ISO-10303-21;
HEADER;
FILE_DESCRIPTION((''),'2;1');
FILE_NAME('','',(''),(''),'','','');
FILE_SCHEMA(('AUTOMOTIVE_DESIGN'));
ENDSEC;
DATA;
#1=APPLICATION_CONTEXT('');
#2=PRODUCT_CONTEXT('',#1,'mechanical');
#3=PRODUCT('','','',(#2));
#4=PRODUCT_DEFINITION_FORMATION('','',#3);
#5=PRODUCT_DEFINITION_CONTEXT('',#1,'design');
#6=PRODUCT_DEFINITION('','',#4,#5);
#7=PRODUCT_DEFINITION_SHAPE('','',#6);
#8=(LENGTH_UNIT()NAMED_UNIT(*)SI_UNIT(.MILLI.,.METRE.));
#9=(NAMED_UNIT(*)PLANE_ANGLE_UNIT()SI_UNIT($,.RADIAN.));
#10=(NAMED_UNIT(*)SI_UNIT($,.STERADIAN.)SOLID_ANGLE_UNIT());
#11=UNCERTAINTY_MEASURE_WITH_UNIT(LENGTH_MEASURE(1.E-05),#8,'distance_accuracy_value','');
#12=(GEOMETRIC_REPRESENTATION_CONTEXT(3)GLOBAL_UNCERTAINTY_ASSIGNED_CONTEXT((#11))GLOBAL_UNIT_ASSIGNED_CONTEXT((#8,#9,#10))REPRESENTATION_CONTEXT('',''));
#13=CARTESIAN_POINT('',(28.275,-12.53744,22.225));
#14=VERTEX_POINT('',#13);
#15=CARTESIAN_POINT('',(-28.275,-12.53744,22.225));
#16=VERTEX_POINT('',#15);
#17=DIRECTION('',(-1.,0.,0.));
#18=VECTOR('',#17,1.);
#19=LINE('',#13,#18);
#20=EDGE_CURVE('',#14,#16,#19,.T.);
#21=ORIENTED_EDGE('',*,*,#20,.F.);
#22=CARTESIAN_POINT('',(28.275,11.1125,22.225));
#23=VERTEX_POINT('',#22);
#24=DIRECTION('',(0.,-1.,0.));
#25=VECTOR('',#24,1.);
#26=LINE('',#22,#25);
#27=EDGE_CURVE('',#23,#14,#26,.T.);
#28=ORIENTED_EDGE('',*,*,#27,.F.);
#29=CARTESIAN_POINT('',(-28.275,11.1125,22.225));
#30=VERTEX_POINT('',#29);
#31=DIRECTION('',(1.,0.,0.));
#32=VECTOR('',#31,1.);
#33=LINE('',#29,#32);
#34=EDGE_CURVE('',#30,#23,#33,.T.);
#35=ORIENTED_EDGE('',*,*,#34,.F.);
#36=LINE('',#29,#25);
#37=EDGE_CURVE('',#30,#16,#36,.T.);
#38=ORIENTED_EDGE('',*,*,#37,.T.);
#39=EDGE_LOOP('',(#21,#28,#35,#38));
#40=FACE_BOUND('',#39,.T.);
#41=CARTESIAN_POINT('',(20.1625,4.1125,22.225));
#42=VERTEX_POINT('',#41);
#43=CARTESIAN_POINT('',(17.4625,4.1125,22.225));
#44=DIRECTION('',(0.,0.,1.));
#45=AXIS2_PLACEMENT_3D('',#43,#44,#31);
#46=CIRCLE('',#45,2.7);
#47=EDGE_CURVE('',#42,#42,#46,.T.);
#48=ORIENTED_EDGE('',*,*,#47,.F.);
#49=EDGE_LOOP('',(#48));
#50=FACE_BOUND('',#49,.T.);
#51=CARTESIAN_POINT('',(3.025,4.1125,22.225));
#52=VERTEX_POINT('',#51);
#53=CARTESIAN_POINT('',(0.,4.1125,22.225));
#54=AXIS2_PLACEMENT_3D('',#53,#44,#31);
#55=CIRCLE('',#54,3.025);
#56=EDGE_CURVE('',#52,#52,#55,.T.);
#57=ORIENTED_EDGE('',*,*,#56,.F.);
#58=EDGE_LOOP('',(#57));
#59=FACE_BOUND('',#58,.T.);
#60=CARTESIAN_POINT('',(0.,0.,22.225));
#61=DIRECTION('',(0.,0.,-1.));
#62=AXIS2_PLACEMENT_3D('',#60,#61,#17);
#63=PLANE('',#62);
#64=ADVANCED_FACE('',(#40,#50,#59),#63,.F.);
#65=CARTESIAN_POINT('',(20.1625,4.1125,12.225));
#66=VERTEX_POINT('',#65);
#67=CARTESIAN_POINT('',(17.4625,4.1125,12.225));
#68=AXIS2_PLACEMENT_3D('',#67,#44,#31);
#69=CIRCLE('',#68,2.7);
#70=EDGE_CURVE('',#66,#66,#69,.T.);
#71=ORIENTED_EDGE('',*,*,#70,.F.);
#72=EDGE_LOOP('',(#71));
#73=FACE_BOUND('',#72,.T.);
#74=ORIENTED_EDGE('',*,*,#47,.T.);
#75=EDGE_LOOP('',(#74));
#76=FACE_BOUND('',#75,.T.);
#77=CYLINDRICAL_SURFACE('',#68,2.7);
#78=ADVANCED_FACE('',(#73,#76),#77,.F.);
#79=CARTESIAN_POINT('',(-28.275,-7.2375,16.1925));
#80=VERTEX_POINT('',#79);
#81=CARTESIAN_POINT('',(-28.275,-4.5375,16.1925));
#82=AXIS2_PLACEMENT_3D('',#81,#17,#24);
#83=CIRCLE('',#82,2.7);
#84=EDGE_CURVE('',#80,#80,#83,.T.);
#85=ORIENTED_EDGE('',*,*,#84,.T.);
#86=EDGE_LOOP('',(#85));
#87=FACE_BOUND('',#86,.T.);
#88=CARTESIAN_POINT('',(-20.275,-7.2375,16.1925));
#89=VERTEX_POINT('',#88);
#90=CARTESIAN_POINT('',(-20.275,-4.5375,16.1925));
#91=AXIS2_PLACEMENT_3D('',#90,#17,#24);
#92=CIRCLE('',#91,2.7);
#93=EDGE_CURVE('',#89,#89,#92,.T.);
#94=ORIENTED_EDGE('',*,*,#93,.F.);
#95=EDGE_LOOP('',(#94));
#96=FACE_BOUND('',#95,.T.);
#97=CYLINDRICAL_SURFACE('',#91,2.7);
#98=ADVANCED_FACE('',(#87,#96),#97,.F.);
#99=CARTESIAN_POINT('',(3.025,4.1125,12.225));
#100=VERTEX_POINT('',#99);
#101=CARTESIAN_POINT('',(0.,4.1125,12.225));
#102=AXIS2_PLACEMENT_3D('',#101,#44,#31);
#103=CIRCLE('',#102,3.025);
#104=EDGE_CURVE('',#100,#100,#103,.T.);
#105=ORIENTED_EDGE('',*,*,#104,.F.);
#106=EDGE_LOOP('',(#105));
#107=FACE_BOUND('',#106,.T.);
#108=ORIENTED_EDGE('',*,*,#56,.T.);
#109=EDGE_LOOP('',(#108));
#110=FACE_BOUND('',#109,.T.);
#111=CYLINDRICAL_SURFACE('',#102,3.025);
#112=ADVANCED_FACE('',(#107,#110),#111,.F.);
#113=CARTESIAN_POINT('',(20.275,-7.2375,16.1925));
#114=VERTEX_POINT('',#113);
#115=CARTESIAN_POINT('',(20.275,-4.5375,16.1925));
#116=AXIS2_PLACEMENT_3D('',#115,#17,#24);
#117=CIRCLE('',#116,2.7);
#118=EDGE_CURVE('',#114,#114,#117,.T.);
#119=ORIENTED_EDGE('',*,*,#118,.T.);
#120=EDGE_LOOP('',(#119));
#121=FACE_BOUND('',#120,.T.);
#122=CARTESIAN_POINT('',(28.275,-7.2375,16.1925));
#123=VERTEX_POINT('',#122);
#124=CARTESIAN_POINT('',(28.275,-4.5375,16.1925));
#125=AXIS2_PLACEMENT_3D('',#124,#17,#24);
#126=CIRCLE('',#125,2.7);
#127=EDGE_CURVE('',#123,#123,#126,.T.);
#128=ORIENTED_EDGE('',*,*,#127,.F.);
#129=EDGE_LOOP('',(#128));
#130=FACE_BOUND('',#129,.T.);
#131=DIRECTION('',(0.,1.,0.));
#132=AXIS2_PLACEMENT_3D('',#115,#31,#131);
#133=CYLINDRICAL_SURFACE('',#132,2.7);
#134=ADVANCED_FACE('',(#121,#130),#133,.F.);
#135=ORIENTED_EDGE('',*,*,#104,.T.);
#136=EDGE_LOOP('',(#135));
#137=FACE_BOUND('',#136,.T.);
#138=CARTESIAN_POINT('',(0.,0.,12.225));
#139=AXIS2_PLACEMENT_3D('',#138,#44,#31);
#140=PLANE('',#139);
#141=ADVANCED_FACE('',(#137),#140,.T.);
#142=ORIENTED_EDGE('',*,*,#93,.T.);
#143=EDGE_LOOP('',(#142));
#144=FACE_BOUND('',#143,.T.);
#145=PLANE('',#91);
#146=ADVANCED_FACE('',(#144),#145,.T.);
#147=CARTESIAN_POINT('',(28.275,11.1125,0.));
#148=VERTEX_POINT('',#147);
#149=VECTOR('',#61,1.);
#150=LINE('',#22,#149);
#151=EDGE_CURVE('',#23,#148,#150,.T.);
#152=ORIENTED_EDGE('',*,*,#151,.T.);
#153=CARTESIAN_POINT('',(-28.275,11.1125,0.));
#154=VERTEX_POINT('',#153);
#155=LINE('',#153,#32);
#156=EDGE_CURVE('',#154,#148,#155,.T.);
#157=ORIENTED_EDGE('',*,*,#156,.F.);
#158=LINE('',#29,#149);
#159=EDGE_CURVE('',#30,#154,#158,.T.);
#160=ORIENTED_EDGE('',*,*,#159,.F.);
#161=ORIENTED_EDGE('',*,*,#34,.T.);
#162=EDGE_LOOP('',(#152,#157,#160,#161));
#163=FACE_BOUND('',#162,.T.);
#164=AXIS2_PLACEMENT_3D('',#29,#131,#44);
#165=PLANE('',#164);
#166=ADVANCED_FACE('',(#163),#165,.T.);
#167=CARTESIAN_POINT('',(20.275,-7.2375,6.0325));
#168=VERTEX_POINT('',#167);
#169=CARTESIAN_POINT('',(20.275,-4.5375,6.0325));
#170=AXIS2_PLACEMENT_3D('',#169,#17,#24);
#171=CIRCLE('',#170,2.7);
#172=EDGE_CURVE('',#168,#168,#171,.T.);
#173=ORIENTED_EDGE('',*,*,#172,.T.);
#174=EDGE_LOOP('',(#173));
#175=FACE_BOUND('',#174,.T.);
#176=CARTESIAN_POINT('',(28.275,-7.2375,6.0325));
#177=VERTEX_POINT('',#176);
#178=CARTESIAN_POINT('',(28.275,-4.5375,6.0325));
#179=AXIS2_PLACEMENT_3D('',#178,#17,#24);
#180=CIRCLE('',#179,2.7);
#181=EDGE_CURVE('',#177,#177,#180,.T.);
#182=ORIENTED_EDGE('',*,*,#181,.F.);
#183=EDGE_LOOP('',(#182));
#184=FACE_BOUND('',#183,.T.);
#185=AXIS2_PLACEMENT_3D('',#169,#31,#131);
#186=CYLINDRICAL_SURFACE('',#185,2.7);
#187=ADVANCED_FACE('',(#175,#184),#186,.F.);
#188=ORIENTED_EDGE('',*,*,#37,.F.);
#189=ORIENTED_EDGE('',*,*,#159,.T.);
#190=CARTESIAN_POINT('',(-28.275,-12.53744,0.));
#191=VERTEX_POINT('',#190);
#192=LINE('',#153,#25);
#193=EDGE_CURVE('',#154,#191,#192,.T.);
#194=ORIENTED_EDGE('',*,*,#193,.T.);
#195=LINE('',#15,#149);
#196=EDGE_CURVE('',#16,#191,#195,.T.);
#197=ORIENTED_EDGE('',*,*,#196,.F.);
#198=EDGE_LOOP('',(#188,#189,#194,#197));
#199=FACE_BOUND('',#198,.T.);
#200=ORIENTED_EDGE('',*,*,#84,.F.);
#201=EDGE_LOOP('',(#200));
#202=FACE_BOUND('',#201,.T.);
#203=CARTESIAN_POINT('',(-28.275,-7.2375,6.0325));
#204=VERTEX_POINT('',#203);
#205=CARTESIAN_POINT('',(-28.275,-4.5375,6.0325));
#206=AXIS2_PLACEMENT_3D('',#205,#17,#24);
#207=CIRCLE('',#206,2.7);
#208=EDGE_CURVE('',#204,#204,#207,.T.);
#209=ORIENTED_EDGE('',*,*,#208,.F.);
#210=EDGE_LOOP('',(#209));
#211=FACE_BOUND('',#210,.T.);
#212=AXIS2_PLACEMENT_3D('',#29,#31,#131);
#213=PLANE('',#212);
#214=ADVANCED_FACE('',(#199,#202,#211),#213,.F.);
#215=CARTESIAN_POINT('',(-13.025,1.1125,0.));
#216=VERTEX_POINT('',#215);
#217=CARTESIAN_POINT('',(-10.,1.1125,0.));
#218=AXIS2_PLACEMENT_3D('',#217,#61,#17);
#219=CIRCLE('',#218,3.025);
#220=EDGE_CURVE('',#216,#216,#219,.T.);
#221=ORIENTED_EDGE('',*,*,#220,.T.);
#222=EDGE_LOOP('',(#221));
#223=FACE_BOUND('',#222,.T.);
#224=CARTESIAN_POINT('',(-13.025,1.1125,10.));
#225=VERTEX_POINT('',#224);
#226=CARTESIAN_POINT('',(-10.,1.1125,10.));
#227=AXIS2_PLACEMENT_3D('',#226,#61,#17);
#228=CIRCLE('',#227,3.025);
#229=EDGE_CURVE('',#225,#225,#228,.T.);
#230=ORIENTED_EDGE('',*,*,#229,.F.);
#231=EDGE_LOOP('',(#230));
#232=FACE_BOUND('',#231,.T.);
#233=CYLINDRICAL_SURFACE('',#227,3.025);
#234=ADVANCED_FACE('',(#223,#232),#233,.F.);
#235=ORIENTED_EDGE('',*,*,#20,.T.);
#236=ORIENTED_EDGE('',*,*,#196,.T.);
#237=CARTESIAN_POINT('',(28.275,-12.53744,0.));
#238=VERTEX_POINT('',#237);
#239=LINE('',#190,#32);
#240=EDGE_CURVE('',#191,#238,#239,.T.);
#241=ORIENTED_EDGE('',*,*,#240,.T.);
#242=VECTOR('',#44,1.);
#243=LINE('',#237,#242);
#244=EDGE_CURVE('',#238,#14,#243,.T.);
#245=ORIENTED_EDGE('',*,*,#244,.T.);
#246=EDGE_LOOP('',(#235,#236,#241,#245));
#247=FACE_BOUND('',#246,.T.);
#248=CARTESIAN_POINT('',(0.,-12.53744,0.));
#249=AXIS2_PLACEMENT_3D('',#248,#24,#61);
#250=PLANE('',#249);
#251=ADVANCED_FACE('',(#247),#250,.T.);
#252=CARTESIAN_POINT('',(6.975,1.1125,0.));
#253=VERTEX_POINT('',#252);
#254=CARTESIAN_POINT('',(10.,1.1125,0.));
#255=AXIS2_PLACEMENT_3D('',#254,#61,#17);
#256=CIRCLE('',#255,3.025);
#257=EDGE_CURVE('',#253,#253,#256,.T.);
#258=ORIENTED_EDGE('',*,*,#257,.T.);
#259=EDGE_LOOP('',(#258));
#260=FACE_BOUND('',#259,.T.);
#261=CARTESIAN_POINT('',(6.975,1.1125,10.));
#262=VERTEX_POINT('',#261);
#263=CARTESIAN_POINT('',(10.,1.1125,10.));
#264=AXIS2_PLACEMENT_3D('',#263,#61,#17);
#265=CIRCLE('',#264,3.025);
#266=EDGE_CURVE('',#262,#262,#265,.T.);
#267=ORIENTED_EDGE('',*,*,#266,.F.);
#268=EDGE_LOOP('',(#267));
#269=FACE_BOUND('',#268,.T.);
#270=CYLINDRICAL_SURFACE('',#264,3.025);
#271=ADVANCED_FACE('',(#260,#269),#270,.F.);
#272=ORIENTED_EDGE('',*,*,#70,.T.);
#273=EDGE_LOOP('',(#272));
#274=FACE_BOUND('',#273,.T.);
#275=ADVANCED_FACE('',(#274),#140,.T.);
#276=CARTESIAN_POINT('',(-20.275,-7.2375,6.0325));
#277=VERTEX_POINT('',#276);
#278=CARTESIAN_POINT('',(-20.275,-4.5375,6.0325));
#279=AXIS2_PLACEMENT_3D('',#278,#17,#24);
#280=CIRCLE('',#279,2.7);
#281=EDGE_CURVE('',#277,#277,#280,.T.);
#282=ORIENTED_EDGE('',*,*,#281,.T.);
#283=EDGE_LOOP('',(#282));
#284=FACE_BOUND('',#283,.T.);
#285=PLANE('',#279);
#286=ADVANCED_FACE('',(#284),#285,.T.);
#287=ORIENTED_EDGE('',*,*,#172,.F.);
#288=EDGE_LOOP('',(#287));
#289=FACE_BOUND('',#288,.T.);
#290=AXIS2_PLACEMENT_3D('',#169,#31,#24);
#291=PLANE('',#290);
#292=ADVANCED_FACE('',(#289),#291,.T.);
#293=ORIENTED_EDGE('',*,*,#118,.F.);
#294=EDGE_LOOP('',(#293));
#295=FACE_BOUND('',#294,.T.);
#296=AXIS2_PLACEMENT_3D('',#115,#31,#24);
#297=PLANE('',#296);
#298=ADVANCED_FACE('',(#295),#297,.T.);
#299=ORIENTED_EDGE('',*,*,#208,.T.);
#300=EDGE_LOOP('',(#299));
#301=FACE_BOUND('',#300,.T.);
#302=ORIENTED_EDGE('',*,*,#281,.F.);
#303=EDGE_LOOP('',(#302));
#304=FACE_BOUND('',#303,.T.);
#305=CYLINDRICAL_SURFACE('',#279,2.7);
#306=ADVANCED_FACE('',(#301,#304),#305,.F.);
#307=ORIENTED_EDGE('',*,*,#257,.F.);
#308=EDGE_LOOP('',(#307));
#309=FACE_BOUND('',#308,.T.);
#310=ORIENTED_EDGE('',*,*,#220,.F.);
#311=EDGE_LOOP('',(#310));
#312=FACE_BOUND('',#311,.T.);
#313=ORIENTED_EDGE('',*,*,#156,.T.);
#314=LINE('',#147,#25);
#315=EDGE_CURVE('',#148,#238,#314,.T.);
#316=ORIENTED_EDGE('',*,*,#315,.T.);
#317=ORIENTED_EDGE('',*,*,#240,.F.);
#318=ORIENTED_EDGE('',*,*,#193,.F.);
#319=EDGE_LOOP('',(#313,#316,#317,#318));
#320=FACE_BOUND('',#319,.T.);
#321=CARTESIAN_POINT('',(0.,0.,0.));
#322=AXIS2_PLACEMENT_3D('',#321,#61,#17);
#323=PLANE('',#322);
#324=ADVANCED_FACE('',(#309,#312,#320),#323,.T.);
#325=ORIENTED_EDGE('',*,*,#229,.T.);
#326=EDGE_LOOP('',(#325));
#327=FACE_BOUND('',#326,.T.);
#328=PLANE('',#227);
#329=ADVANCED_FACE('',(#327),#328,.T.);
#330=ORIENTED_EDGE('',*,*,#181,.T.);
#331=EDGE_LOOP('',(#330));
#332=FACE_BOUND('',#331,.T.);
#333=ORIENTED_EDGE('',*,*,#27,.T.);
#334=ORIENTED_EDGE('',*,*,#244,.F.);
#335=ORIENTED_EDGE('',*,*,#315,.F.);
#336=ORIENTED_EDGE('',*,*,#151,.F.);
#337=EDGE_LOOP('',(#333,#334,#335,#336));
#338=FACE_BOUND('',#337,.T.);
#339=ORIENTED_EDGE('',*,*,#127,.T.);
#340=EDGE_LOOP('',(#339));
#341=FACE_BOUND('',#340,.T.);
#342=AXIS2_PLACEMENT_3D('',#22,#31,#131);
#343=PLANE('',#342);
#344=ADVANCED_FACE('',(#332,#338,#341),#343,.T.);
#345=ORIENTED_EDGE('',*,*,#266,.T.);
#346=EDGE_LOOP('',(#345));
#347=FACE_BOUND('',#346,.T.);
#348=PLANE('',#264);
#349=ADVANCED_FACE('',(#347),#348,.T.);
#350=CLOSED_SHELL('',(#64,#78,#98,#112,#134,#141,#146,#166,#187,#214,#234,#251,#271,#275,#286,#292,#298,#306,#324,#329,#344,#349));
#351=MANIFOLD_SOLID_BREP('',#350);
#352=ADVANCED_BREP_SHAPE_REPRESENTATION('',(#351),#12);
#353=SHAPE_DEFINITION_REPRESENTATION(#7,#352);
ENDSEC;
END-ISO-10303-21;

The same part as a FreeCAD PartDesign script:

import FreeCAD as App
import Part
import Sketcher

V = App.Vector


def add_polygon(sketch, points):
    """Adds a closed chain of lines whose ends are joined by coincident constraints."""
    first, n = sketch.GeometryCount, len(points)
    for a, b in zip(points, points[1:] + points[:1]):
        sketch.addGeometry(Part.LineSegment(App.Vector(*a, 0), App.Vector(*b, 0)), False)
    for i in range(n):
        sketch.addConstraint(Sketcher.Constraint("Coincident", first + i, 2, first + (i + 1) % n, 1))

doc = App.newDocument("Part")
body = doc.addObject("PartDesign::Body", "Body")

# Sketch on XY plane
sketch1 = body.newObject("Sketcher::SketchObject", "Sketch")
sketch1.AttachmentSupport = (doc.getObject("XY_Plane"), [""])
sketch1.MapMode = "FlatFace"
add_polygon(sketch1, [(-28, 11), (-28, -11), (28, -11), (28, 11)])  # lines 0-3
sketch1.addConstraint([
    Sketcher.Constraint("Vertical", 0),
    Sketcher.Constraint("Horizontal", 1),
    Sketcher.Constraint("Vertical", 2),
    Sketcher.Constraint("Horizontal", 3),
    Sketcher.Constraint("Symmetric", 0, 2, 2, 2, -1, 1),
    Sketcher.Constraint("DistanceX", 1, 1, 1, 2, 56.55),
    Sketcher.Constraint("DistanceY", 0, 2, 0, 1, 22.225),
])
pad1 = body.newObject("PartDesign::Pad", "Pad")
pad1.Profile = sketch1
pad1.Length = 22.225

# Sketch on XY plane
sketch2 = body.newObject("Sketcher::SketchObject", "Sketch001")
sketch2.AttachmentSupport = (doc.getObject("XY_Plane"), [""])
sketch2.MapMode = "FlatFace"
sketch2.AttachmentOffset = App.Placement(V(0, 0, 22.225), App.Rotation())
sketch2.addGeometry([
    Part.Circle(V(17.5, 4.1, 0), V(0, 0, 1), 2.7),
    Part.Circle(V(0, 4.1, 0), V(0, 0, 1), 3),
], False)
sketch2.addConstraint([
    Sketcher.Constraint("PointOnObject", 1, 3, -2),
    Sketcher.Constraint("Horizontal", 0, 3, 1, 3),
    Sketcher.Constraint("Diameter", 0, 5.4),
    Sketcher.Constraint("Diameter", 1, 6.05),
    Sketcher.Constraint("DistanceX", -1, 1, 0, 3, 17.4625),
    Sketcher.Constraint("DistanceY", -1, 1, 0, 3, 4.1125),
])
pocket1 = body.newObject("PartDesign::Pocket", "Pocket")
pocket1.Profile = sketch2
pocket1.Length = 10

# Sketch on YZ plane
sketch3 = body.newObject("Sketcher::SketchObject", "Sketch002")
sketch3.AttachmentSupport = (doc.getObject("YZ_Plane"), [""])
sketch3.MapMode = "FlatFace"
sketch3.AttachmentOffset = App.Placement(V(0, 0, -28.275), App.Rotation())
sketch3.addGeometry([
    Part.Circle(V(-4.5, 16.2, 0), V(0, 0, 1), 2.7),
    Part.Circle(V(-4.5, 6, 0), V(0, 0, 1), 2.7),
], False)
sketch3.addConstraint([
    Sketcher.Constraint("Equal", 0, 1),
    Sketcher.Constraint("Vertical", 0, 3, 1, 3),
    Sketcher.Constraint("Diameter", 0, 5.4),
    Sketcher.Constraint("DistanceY", 1, 3, 0, 3, 10.16),
    Sketcher.Constraint("DistanceX", 0, 3, -1, 1, 4.5375),
    Sketcher.Constraint("DistanceY", -1, 1, 0, 3, 16.1925),
])
pocket2 = body.newObject("PartDesign::Pocket", "Pocket001")
pocket2.Profile = sketch3
pocket2.Length = 8
pocket2.Reversed = True

# Sketch on XZ plane
sketch4 = body.newObject("Sketcher::SketchObject", "Sketch003")
sketch4.AttachmentSupport = (doc.getObject("XZ_Plane"), [""])
sketch4.MapMode = "FlatFace"
sketch4.AttachmentOffset = App.Placement(V(0, 0, 11.1125), App.Rotation())
add_polygon(sketch4, [(-28, 22), (-28, 0), (28, 0), (28, 22)])  # lines 0-3
sketch4.addConstraint([
    Sketcher.Constraint("Vertical", 0),
    Sketcher.Constraint("Horizontal", 1),
    Sketcher.Constraint("Vertical", 2),
    Sketcher.Constraint("Horizontal", 3),
    Sketcher.Constraint("Symmetric", 0, 2, 1, 2, -1, 1),
    Sketcher.Constraint("DistanceX", 1, 1, 1, 2, 56.55),
    Sketcher.Constraint("DistanceY", 0, 2, 0, 1, 22.225),
])
pad2 = body.newObject("PartDesign::Pad", "Pad001")
pad2.Profile = sketch4
pad2.Length = 1.42494
doc.recompute()

mirrored = body.newObject("PartDesign::Mirrored", "Mirrored")
mirrored.Originals = [pocket2]
mirrored.MirrorPlane = (doc.getObject("YZ_Plane"), [""])
body.Tip = mirrored

# Sketch on XY plane
sketch5 = body.newObject("Sketcher::SketchObject", "Sketch004")
sketch5.AttachmentSupport = (doc.getObject("XY_Plane"), [""])
sketch5.MapMode = "FlatFace"
sketch5.addGeometry([
    Part.Circle(V(10, 1.1, 0), V(0, 0, 1), 3),
    Part.Circle(V(-10, 1.1, 0), V(0, 0, 1), 3),
], False)
sketch5.addConstraint([
    Sketcher.Constraint("Equal", 0, 1),
    Sketcher.Constraint("Symmetric", 0, 3, 1, 3, -2),
    Sketcher.Constraint("Diameter", 0, 6.05),
    Sketcher.Constraint("DistanceX", -1, 1, 0, 3, 10.0),
    Sketcher.Constraint("DistanceY", -1, 1, 0, 3, 1.1125),
])
pocket3 = body.newObject("PartDesign::Pocket", "Pocket002")
pocket3.Profile = sketch5
pocket3.Length = 10
pocket3.Reversed = True

doc.recompute()
